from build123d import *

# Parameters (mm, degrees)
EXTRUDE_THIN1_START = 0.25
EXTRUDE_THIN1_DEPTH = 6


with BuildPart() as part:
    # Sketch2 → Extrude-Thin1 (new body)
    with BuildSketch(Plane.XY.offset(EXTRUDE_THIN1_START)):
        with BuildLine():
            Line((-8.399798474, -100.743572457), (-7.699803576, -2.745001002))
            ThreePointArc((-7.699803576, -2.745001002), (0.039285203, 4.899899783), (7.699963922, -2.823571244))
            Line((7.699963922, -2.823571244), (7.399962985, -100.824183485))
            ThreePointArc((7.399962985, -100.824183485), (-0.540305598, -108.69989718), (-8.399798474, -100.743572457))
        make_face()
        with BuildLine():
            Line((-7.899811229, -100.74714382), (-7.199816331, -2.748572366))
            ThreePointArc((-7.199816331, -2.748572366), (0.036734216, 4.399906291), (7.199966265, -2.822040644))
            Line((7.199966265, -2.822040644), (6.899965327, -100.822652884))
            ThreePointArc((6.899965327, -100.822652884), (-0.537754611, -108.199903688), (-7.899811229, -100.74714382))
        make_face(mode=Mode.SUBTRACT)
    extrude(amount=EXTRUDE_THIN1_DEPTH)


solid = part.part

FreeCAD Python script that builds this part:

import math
import FreeCAD as App
import Part
import Sketcher

V = App.Vector
Q = App.Units.Quantity

doc = App.newDocument("Part")
params = doc.addObject("Spreadsheet::Sheet", "Params")
for row, (alias, value) in enumerate([
    ("sketch1_radius", "7.9 mm"),
    ("sketch1_radius2", "7.7 mm"),
    ("sketch1_radius3", "7.2 mm"),
    ("pad1_length", "6 mm"),
], start=1):
    params.set(f"A{row}", alias)
    params.set(f"B{row}", "=" + value)
    params.setAlias(f"B{row}", alias)

body = doc.addObject("PartDesign::Body", "Body")

# Sketch on XY plane
sketch1 = body.newObject("Sketcher::SketchObject", "Sketch")
sketch1.AttachmentSupport = (doc.getObject("XY_Plane"), [""])
sketch1.MapMode = "FlatFace"
sketch1.AttachmentOffset = App.Placement(V(0, 0, 0.25), App.Rotation())
sketch1.addGeometry([
    Part.LineSegment(V(-8, -3, 0), V(-8, -101, 0)),  # 0
    Part.ArcOfCircle(Part.Circle(V(0, -101, 0), V(0, 0, 1), 8), math.radians(180), math.radians(360)),  # 1
    Part.LineSegment(V(7, -101, 0), V(8, -3, 0)),  # 2
    Part.ArcOfCircle(Part.Circle(V(0, -3, 0), V(0, 0, 1), 8), math.radians(0), math.radians(180)),  # 3
    Part.LineSegment(V(-8, -101, 0), V(-7, -3, 0)),  # 4
    Part.ArcOfCircle(Part.Circle(V(0, -3, 0), V(0, 0, 1), 7), math.radians(0), math.radians(180)),  # 5
    Part.LineSegment(V(7, -3, 0), V(7, -101, 0)),  # 6
    Part.ArcOfCircle(Part.Circle(V(0, -101, 0), V(0, 0, 1), 7), math.radians(180), math.radians(360)),  # 7
], False)
sketch1.addConstraint([
    Sketcher.Constraint("Tangent", 0, 2, 1, 1),
    Sketcher.Constraint("Tangent", 1, 2, 2, 1),
    Sketcher.Constraint("Tangent", 2, 2, 3, 1),
    Sketcher.Constraint("Tangent", 3, 2, 0, 1),
    Sketcher.Constraint("Tangent", 4, 2, 5, 2),
    Sketcher.Constraint("Tangent", 5, 1, 6, 1),
    Sketcher.Constraint("Tangent", 6, 2, 7, 2),
    Sketcher.Constraint("Tangent", 7, 1, 4, 1),
    Sketcher.Constraint("Coincident", 5, 3, 3, 3),
    Sketcher.Constraint("Coincident", 7, 3, 1, 3),
    Sketcher.Constraint("PointOnObject", 3, 3, -2),
    Sketcher.Constraint("Parallel", 0, 4),
    Sketcher.Constraint("Radius", 1, Q("7.9 mm")),
    Sketcher.Constraint("Radius", 3, Q("7.7 mm")),
    Sketcher.Constraint("Radius", 5, Q("7.2 mm")),
    Sketcher.Constraint("DistanceY", 1, 3, 3, 3, Q("98 mm")),
    Sketcher.Constraint("DistanceX", 1, 3, -1, 1, Q("0.5 mm")),
    Sketcher.Constraint("DistanceY", 1, 3, -1, 1, Q("100.8 mm")),
])
sketch1.setExpression("Constraints[12]", "Params.sketch1_radius")
sketch1.setExpression("Constraints[13]", "Params.sketch1_radius2")
sketch1.setExpression("Constraints[14]", "Params.sketch1_radius3")
pad1 = body.newObject("PartDesign::Pad", "Pad")
pad1.Profile = sketch1
pad1.setExpression("Length", "Params.pad1_length")

doc.recompute()
